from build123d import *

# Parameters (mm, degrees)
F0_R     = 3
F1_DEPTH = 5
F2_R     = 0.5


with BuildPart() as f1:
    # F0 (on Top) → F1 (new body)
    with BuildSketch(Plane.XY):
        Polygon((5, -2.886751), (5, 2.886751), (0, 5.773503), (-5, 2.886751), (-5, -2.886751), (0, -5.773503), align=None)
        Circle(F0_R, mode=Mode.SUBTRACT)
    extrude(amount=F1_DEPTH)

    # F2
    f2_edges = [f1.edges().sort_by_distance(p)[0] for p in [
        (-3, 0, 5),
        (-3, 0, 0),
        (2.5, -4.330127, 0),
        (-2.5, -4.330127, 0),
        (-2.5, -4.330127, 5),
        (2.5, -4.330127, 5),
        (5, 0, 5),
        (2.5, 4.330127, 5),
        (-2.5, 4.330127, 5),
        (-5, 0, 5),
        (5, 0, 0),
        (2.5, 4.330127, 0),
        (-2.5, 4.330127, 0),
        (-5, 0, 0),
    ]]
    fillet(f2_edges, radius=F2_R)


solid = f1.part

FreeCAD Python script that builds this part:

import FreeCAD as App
import Part
import Sketcher
from FreeCAD import Vector
Q = App.Units.Quantity


def edges_at(feature, points):
    """Names of the edges that pass closest to the given points."""
    edges = feature.Shape.Edges
    near = lambda p: min(range(len(edges)), key=lambda i: edges[i].distToShape(Part.Vertex(*p))[0])
    return sorted({f"Edge{near(p) + 1}" for p in points})


def add_polygon(sketch, points):
    """Adds a closed chain of lines whose ends are joined by coincident constraints."""
    first, n = sketch.GeometryCount, len(points)
    for a, b in zip(points, points[1:] + points[:1]):
        sketch.addGeometry(Part.LineSegment(App.Vector(*a, 0), App.Vector(*b, 0)), False)
    for i in range(n):
        sketch.addConstraint(Sketcher.Constraint("Coincident", first + i, 2, first + (i + 1) % n, 1))

doc = App.newDocument("Part")
body = doc.addObject("PartDesign::Body", "Body")

# Sketch on XY plane
sketch1 = body.newObject("Sketcher::SketchObject", "Sketch")
sketch1.AttachmentSupport = (doc.getObject("XY_Plane"), [""])
sketch1.MapMode = "FlatFace"
add_polygon(sketch1, [(5, -2.9), (5, 2.9), (0, 5.8), (-5, 2.9), (-5, -2.9), (0, -5.8)])  # lines 0-5
sketch1.addGeometry(Part.Circle(Vector(0, 0, 0), Vector(0, 0, 1), 3), False)  # 6
sketch1.addConstraint([
    Sketcher.Constraint("Vertical", 0),
    Sketcher.Constraint("Vertical", 3),
    Sketcher.Constraint("Coincident", 6, 3, -1, 1),
    Sketcher.Constraint("Symmetric", 0, 2, 3, 2, -1, 1),
    Sketcher.Constraint("Symmetric", 1, 2, 4, 2, -1, 1),
    Sketcher.Constraint("PointOnObject", 1, 2, -2),
    Sketcher.Constraint("Parallel", 2, 5),
    Sketcher.Constraint("Horizontal", 0, 2, 2, 2),
    Sketcher.Constraint("Diameter", 6, 6.0),
    Sketcher.Constraint("Angle", 1, Q("149.999994 deg")),
    Sketcher.Constraint("DistanceX", -1, 1, 0, 2, 5.0),
    Sketcher.Constraint("DistanceY", 0, 1, 0, 2, 5.773502),
])
pad1 = body.newObject("PartDesign::Pad", "Pad")
pad1.Profile = sketch1
pad1.Length = 5
doc.recompute()

fillet = body.newObject("PartDesign::Fillet", "Fillet")
fillet.Base = (pad1, edges_at(pad1, [
    (-3, 0, 5),
    (-3, 0, 0),
    (2.5, -4.33, 0),
    (-2.5, -4.33, 0),
    (-2.5, -4.33, 5),
    (2.5, -4.33, 5),
    (5, 0, 5),
    (2.5, 4.33, 5),
    (-2.5, 4.33, 5),
    (-5, 0, 5),
    (5, 0, 0),
    (2.5, 4.33, 0),
    (-2.5, 4.33, 0),
    (-5, 0, 0),
]))
fillet.Radius = 0.5

doc.recompute()
